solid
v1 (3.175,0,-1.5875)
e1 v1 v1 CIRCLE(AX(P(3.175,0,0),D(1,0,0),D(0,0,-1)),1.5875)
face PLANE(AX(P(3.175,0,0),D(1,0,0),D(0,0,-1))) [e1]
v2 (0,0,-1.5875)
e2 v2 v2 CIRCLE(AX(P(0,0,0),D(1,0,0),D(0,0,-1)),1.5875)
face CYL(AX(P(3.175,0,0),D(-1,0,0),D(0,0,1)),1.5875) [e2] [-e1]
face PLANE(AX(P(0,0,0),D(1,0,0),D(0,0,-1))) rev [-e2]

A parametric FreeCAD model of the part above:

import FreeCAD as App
import Part
import Sketcher

V = App.Vector
Q = App.Units.Quantity

doc = App.newDocument("Part")
body = doc.addObject("PartDesign::Body", "Body")

# Sketch on YZ plane
sketch1 = body.newObject("Sketcher::SketchObject", "Sketch")
sketch1.AttachmentSupport = (doc.getObject("YZ_Plane"), [""])
sketch1.MapMode = "FlatFace"
sketch1.addGeometry(Part.Circle(V(0, 0, 0), V(0, 0, 1), 1.5875), False)
sketch1.addConstraint(Sketcher.Constraint("Coincident", 0, 3, -1, 1))
sketch1.addConstraint(Sketcher.Constraint("Diameter", 0, Q("0.125 in")))
pad1 = body.newObject("PartDesign::Pad", "Pad")
pad1.Profile = sketch1
pad1.Length = Q("0.125 in")

doc.recompute()
